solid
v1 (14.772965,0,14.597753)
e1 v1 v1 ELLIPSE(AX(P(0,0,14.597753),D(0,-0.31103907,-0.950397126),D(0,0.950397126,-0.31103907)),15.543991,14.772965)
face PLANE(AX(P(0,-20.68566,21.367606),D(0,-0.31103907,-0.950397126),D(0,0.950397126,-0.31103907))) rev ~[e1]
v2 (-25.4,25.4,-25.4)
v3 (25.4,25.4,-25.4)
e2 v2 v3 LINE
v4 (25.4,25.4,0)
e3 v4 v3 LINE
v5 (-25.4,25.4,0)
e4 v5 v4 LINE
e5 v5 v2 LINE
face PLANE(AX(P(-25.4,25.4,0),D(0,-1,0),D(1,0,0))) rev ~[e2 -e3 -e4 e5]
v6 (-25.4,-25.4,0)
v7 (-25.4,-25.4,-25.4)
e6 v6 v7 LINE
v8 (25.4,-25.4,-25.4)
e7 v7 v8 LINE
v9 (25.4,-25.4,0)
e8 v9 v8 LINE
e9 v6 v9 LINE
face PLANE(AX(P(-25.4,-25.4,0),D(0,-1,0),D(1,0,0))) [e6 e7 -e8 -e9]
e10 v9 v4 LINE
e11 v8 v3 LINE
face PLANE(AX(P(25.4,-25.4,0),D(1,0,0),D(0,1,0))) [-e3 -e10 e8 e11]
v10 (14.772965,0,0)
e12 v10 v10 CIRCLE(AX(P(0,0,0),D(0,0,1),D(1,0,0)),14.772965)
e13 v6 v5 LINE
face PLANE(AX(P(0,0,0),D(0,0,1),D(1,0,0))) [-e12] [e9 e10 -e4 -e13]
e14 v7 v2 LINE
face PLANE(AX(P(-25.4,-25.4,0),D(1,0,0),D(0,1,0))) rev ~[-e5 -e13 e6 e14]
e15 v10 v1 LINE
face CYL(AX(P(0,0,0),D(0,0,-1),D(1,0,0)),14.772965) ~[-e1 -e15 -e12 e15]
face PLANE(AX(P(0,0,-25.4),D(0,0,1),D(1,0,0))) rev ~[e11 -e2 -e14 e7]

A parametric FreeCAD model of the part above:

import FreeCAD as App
import Part
import Sketcher

V = App.Vector
Q = App.Units.Quantity

doc = App.newDocument("Part")
body = doc.addObject("PartDesign::Body", "Body")

# Sketch on XY plane
sketch1 = doc.addObject("Sketcher::SketchObject", "Sketch")
body.addObject(sketch1)
sketch1.AttachmentSupport = (doc.XY_Plane, [""])
sketch1.MapMode = "FlatFace"
sketch1.addGeometry(Part.LineSegment(V(-25, 25, 0), V(-25, -25, 0)), False)
sketch1.addGeometry(Part.LineSegment(V(-25, -25, 0), V(25, -25, 0)), False)
sketch1.addGeometry(Part.LineSegment(V(25, -25, 0), V(25, 25, 0)), False)
sketch1.addGeometry(Part.LineSegment(V(25, 25, 0), V(-25, 25, 0)), False)
sketch1.addConstraint(Sketcher.Constraint("Coincident", 0, 2, 1, 1))
sketch1.addConstraint(Sketcher.Constraint("Coincident", 1, 2, 2, 1))
sketch1.addConstraint(Sketcher.Constraint("Coincident", 2, 2, 3, 1))
sketch1.addConstraint(Sketcher.Constraint("Coincident", 3, 2, 0, 1))
sketch1.addConstraint(Sketcher.Constraint("Vertical", 0))
sketch1.addConstraint(Sketcher.Constraint("Horizontal", 1))
sketch1.addConstraint(Sketcher.Constraint("Vertical", 2))
sketch1.addConstraint(Sketcher.Constraint("Horizontal", 3))
sketch1.addConstraint(Sketcher.Constraint("Symmetric", 0, 2, 2, 2, -1, 1))
sketch1.addConstraint(Sketcher.Constraint("Equal", 3, 0))
sketch1.addConstraint(Sketcher.Constraint("DistanceX", 1, 1, 1, 2, Q("2 in")))
pad1 = doc.addObject("PartDesign::Pad", "Pad")
body.addObject(pad1)
pad1.Profile = sketch1
pad1.Length = Q("1 in")
pad1.Reversed = True

# Sketch on XY plane
sketch2 = doc.addObject("Sketcher::SketchObject", "Sketch001")
body.addObject(sketch2)
sketch2.AttachmentSupport = (doc.XY_Plane, [""])
sketch2.MapMode = "FlatFace"
sketch2.addGeometry(Part.Circle(V(0, 0, 0), V(0, 0, 1), 15), False)
sketch2.addConstraint(Sketcher.Constraint("Coincident", 0, 3, -1, 1))
sketch2.addConstraint(Sketcher.Constraint("Diameter", 0, 29.545929))
pad2 = doc.addObject("PartDesign::Pad", "Pad001")
body.addObject(pad2)
pad2.Profile = sketch2
pad2.Length = Q("1 in")

# Sketch on YZ plane
sketch3 = doc.addObject("Sketcher::SketchObject", "Sketch002")
body.addObject(sketch3)
sketch3.AttachmentSupport = (doc.YZ_Plane, [""])
sketch3.MapMode = "FlatFace"
sketch3.addGeometry(Part.LineSegment(V(-23, 40, 0), V(-21, 21, 0)), False)
sketch3.addGeometry(Part.LineSegment(V(-21, 21, 0), V(29, 5, 0)), False)
sketch3.addGeometry(Part.LineSegment(V(29, 5, 0), V(29, 40, 0)), False)
sketch3.addGeometry(Part.LineSegment(V(29, 40, 0), V(-23, 40, 0)), False)
sketch3.addConstraint(Sketcher.Constraint("Coincident", 0, 2, 1, 1))
sketch3.addConstraint(Sketcher.Constraint("Coincident", 1, 2, 2, 1))
sketch3.addConstraint(Sketcher.Constraint("Coincident", 2, 2, 3, 1))
sketch3.addConstraint(Sketcher.Constraint("Coincident", 3, 2, 0, 1))
sketch3.addConstraint(Sketcher.Constraint("Vertical", 2))
sketch3.addConstraint(Sketcher.Constraint("Horizontal", 3))
sketch3.addConstraint(Sketcher.Constraint("DistanceX", 3, 2, 3, 1, 52.28243))
sketch3.addConstraint(Sketcher.Constraint("DistanceY", 2, 1, 2, 2, 35.461128))
sketch3.addConstraint(Sketcher.Constraint("DistanceX", 0, 2, -1, 1, 20.68566))
sketch3.addConstraint(Sketcher.Constraint("DistanceY", -1, 1, 1, 2, 5.00093))
sketch3.addConstraint(Sketcher.Constraint("Distance", 0, 19.229282))
sketch3.addConstraint(Sketcher.Constraint("Distance", 1, 52.619357))
pocket1 = doc.addObject("PartDesign::Pocket", "Pocket")
body.addObject(pocket1)
pocket1.Profile = sketch3
pocket1.Length = Q("2 in")
pocket1.Midplane = True

doc.recompute()
